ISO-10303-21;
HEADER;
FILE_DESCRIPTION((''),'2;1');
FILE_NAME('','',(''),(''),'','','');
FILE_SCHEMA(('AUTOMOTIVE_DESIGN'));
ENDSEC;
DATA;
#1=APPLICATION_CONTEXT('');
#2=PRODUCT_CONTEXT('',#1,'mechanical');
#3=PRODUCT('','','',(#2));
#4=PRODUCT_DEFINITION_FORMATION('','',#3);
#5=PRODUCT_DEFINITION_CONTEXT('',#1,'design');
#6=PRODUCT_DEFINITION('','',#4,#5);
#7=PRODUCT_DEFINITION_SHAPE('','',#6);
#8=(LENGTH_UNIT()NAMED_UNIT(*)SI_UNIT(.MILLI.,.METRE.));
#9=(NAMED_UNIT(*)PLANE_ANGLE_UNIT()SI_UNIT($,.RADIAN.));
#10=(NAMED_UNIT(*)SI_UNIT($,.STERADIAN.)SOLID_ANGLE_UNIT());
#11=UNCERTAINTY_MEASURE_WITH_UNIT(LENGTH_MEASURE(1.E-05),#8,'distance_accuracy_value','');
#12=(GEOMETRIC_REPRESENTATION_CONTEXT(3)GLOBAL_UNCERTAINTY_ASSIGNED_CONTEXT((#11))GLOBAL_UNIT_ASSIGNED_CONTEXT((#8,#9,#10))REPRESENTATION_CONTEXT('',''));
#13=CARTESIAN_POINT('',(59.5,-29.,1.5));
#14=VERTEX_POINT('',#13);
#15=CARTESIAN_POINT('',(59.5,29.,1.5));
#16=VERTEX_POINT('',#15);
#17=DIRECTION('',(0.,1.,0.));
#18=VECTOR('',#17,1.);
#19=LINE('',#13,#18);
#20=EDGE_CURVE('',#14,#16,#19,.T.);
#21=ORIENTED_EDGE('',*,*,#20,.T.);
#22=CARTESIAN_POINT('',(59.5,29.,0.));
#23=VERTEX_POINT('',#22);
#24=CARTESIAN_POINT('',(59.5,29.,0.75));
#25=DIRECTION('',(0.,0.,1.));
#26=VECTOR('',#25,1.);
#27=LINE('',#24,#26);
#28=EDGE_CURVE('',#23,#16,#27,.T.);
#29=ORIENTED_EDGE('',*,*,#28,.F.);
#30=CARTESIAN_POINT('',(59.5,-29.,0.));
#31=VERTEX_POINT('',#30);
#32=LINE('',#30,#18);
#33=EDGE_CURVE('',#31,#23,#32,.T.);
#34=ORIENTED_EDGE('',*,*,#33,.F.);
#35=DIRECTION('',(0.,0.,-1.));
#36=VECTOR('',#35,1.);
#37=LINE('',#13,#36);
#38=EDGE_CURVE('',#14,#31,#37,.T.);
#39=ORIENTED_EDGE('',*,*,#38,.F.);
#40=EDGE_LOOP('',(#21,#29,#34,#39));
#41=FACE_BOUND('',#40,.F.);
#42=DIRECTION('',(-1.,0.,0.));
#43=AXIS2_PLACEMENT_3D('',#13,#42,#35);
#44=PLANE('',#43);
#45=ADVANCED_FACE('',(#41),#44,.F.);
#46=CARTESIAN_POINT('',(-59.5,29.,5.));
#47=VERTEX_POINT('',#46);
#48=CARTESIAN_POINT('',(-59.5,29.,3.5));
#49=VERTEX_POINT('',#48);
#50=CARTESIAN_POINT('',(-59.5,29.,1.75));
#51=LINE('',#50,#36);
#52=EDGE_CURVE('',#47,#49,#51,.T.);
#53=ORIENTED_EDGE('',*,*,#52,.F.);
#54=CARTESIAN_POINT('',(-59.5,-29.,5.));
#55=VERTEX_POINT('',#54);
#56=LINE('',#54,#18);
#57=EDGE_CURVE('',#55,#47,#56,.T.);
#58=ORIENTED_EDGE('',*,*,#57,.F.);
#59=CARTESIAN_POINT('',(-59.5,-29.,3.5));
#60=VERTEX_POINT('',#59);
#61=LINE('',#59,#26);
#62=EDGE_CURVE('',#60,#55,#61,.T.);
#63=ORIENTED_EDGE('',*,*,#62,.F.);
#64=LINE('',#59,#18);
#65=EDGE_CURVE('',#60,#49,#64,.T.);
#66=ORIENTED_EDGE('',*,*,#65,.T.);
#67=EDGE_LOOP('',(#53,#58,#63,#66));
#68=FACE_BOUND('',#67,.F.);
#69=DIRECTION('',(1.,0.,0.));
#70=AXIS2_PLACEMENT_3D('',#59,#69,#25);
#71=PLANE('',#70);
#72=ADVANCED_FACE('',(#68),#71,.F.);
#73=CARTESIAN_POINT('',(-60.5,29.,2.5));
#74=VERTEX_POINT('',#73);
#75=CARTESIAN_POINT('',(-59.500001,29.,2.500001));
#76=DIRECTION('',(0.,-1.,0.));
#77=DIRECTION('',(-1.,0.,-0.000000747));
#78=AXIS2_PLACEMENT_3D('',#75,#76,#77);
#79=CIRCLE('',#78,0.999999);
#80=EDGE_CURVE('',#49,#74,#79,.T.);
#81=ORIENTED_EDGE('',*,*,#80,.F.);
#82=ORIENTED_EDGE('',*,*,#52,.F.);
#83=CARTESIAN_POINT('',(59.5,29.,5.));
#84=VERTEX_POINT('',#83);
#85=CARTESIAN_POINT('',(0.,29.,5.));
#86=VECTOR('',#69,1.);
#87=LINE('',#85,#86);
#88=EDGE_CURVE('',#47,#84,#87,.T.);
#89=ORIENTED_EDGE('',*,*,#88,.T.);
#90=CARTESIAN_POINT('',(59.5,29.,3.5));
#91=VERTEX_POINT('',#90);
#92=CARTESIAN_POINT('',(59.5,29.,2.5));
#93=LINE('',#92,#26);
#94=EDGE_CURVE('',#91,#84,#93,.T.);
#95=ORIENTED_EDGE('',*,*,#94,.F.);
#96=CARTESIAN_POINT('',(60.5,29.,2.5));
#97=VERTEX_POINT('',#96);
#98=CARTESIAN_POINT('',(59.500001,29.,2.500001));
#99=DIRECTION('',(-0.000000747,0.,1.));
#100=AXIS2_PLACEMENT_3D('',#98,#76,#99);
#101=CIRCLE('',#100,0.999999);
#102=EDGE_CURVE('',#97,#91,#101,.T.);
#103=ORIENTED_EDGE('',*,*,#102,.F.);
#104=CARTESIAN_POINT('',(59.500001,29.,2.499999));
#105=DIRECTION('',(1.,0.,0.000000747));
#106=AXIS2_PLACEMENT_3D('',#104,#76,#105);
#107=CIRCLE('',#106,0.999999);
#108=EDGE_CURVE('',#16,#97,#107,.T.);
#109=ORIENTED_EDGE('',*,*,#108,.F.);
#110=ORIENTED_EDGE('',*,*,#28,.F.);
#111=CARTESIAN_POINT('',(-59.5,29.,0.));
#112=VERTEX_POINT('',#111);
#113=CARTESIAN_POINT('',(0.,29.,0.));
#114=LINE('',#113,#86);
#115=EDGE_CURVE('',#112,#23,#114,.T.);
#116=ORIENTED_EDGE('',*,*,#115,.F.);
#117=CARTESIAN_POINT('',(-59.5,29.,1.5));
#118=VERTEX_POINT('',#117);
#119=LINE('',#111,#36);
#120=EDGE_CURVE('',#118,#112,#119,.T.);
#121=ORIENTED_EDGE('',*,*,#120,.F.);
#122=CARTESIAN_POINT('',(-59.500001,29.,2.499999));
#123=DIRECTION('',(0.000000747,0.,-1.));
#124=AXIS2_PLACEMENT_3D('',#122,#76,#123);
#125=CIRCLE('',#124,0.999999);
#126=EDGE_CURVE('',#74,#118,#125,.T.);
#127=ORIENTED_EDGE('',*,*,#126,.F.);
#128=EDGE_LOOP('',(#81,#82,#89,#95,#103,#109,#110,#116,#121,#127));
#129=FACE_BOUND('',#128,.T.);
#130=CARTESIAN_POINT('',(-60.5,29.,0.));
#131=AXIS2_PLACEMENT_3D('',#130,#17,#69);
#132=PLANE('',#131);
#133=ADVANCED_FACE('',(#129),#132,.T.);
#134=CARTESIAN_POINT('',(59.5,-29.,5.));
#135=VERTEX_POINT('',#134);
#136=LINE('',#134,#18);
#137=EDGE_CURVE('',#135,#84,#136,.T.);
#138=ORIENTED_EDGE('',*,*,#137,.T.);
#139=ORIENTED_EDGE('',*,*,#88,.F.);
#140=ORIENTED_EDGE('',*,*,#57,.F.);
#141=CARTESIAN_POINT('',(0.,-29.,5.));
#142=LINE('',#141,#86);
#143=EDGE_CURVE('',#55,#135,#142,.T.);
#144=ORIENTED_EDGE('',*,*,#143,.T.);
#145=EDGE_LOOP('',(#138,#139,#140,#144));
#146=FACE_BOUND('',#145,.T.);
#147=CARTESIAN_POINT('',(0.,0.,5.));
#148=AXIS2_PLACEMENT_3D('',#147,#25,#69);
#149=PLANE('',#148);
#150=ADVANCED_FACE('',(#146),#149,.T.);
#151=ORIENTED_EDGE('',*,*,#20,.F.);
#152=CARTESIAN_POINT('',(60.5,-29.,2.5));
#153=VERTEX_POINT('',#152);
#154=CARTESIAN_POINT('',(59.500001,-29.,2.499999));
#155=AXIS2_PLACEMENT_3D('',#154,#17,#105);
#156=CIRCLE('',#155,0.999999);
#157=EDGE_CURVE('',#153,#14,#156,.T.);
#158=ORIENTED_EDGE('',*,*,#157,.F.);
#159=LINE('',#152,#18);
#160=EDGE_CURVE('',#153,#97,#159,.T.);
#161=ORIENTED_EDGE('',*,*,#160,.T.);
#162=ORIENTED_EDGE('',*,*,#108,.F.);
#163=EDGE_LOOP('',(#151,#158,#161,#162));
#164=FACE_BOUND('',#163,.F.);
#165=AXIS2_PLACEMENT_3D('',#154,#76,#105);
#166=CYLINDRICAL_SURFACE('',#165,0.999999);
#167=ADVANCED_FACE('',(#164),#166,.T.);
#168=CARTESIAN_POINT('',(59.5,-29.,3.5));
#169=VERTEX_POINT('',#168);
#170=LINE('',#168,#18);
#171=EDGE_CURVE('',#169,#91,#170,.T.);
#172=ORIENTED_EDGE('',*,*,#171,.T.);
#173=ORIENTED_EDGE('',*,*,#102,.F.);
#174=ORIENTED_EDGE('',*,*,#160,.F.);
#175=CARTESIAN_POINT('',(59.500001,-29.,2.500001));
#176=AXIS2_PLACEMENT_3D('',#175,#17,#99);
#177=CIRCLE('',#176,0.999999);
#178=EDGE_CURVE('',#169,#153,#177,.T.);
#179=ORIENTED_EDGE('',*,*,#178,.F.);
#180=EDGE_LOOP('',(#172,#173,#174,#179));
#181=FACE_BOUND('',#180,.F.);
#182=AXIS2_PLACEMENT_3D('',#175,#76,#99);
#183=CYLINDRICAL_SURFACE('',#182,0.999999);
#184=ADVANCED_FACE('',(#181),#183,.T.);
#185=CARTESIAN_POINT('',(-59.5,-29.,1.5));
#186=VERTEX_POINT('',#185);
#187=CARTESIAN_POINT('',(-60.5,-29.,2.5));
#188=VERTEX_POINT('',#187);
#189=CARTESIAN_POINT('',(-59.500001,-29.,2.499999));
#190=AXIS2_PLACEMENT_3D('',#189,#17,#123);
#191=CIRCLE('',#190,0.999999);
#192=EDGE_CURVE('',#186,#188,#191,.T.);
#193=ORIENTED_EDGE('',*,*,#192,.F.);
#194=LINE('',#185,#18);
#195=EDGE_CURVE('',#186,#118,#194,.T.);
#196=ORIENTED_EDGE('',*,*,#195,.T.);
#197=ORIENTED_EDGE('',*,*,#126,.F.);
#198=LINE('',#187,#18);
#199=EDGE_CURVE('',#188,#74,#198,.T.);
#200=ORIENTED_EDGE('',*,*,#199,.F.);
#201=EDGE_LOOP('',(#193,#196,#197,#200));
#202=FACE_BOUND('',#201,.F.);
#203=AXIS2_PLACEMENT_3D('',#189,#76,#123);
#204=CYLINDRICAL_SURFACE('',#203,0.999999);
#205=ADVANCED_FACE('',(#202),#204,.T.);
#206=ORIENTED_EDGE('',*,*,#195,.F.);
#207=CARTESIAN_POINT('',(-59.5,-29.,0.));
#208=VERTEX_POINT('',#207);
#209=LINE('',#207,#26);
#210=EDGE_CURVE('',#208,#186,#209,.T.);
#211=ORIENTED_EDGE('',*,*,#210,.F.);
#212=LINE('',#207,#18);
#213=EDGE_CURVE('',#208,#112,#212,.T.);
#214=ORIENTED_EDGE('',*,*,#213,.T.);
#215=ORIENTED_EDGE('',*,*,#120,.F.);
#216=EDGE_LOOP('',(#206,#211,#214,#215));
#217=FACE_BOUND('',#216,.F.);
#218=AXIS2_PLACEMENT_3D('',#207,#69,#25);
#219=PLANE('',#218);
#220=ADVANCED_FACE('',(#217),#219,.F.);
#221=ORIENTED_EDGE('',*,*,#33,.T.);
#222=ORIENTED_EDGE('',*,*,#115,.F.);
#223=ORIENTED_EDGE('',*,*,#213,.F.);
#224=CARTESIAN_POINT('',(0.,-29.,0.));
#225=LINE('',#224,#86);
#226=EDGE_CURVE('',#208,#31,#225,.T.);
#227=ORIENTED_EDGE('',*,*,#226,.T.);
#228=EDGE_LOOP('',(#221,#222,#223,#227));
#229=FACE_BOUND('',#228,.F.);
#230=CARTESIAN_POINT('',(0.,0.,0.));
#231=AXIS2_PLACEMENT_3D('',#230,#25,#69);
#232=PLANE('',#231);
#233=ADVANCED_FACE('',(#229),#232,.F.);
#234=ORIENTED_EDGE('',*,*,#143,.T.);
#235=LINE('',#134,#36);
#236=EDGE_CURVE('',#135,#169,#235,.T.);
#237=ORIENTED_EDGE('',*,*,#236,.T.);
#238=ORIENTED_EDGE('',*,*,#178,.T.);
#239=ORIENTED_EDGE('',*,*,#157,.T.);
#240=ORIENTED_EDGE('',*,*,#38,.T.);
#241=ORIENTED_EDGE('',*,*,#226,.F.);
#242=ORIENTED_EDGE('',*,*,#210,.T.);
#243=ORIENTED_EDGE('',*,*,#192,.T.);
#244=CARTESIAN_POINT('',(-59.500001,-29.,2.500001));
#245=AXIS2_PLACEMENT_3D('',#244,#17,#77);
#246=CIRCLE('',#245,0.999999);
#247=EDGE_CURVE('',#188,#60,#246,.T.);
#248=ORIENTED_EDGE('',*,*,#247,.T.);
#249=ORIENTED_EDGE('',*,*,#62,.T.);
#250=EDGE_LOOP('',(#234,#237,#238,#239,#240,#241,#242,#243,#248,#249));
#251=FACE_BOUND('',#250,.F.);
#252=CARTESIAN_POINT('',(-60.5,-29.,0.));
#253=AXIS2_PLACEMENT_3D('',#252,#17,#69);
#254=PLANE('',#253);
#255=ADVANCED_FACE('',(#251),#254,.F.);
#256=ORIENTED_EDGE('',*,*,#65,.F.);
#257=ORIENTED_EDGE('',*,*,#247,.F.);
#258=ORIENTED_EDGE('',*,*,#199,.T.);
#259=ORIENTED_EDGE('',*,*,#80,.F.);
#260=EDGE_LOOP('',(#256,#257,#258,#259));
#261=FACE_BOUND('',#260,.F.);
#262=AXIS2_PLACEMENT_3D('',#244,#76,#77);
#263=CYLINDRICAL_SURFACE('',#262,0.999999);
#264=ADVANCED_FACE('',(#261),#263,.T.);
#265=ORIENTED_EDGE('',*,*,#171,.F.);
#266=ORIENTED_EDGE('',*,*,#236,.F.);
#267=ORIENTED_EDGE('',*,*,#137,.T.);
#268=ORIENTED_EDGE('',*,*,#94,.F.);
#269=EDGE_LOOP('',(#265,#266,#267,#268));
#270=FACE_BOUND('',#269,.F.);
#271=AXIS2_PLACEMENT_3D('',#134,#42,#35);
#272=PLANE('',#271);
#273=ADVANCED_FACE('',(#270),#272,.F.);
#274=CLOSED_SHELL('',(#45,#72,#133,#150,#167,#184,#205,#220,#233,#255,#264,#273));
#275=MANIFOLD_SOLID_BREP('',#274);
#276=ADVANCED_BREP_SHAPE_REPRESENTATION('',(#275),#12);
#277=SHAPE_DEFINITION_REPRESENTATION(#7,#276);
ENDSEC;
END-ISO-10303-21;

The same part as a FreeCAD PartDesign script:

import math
import FreeCAD as App
import Part
import Sketcher
from FreeCAD import Vector
Q = App.Units.Quantity

doc = App.newDocument("Part")
body = doc.addObject("PartDesign::Body", "Body")

# Sketch on XY plane
sketch1 = body.newObject("Sketcher::SketchObject", "Sketch")
sketch1.AttachmentSupport = (doc.getObject("XY_Plane"), [""])
sketch1.MapMode = "FlatFace"
sketch1.addGeometry([
    Part.LineSegment(Vector(-60, 29, 0), Vector(-60, -29, 0)),
    Part.LineSegment(Vector(-60, -29, 0), Vector(60, -29, 0)),
    Part.LineSegment(Vector(60, -29, 0), Vector(60, 29, 0)),
    Part.LineSegment(Vector(60, 29, 0), Vector(-60, 29, 0)),
], False)
sketch1.addConstraint([
    Sketcher.Constraint("Coincident", 0, 2, 1, 1),
    Sketcher.Constraint("Coincident", 1, 2, 2, 1),
    Sketcher.Constraint("Coincident", 2, 2, 3, 1),
    Sketcher.Constraint("Coincident", 3, 2, 0, 1),
    Sketcher.Constraint("Vertical", 0),
    Sketcher.Constraint("Horizontal", 1),
    Sketcher.Constraint("Vertical", 2),
    Sketcher.Constraint("Horizontal", 3),
    Sketcher.Constraint("Symmetric", 0, 2, 2, 2, -1, 1),
    Sketcher.Constraint("DistanceX", 1, 1, 1, 2, Q("121 mm")),
    Sketcher.Constraint("DistanceY", 0, 2, 0, 1, Q("58 mm")),
])
pad1 = body.newObject("PartDesign::Pad", "Pad")
pad1.Profile = sketch1
pad1.Length = 5

# Sketch on XZ plane
sketch2 = body.newObject("Sketcher::SketchObject", "Sketch001")
sketch2.AttachmentSupport = (doc.getObject("XZ_Plane"), [""])
sketch2.MapMode = "FlatFace"
sketch2.AttachmentOffset = App.Placement(Vector(0, 0, 29), App.Rotation())
sketch2.addGeometry([
    Part.LineSegment(Vector(-59.5, 3.5, 0), Vector(-59.5, 5, 0)),  # 0
    Part.LineSegment(Vector(-59.5, 5, 0), Vector(-60.5, 5, 0)),  # 1
    Part.LineSegment(Vector(-60.5, 5, 0), Vector(-60.5, 2.5, 0)),  # 2
    Part.ArcOfCircle(Part.Circle(Vector(-59.5, 2.5, 0), Vector(0, 0, 1), 1), math.radians(90), math.radians(180)),  # 3
    Part.LineSegment(Vector(-60.5, 0, 0), Vector(-59.5, 0, 0)),  # 4
    Part.LineSegment(Vector(-59.5, 0, 0), Vector(-59.5, 1.5, 0)),  # 5
    Part.ArcOfCircle(Part.Circle(Vector(-59.5, 2.5, 0), Vector(0, 0, 1), 1), math.radians(180), math.radians(270)),  # 6
    Part.LineSegment(Vector(-60.5, 2.5, 0), Vector(-60.5, 0, 0)),  # 7
    Part.LineSegment(Vector(60.5, 0, 0), Vector(60.5, 2.5, 0)),  # 8
    Part.ArcOfCircle(Part.Circle(Vector(59.5, 2.5, 0), Vector(0, 0, 1), 1), math.radians(-90), math.radians(0)),  # 9
    Part.LineSegment(Vector(59.5, 1.5, 0), Vector(59.5, 0, 0)),  # 10
    Part.LineSegment(Vector(59.5, 0, 0), Vector(60.5, 0, 0)),  # 11
    Part.ArcOfCircle(Part.Circle(Vector(59.5, 2.5, 0), Vector(0, 0, 1), 1), math.radians(0), math.radians(90)),  # 12
    Part.LineSegment(Vector(60.5, 2.5, 0), Vector(60.5, 5, 0)),  # 13
    Part.LineSegment(Vector(60.5, 5, 0), Vector(59.5, 5, 0)),  # 14
    Part.LineSegment(Vector(59.5, 5, 0), Vector(59.5, 3.5, 0)),  # 15
], False)
sketch2.addConstraint([
    Sketcher.Constraint("Coincident", 0, 2, 1, 1),
    Sketcher.Constraint("Coincident", 1, 2, 2, 1),
    Sketcher.Constraint("Tangent", 2, 2, 3, 2),
    Sketcher.Constraint("Coincident", 3, 1, 0, 1),
    Sketcher.Constraint("Coincident", 4, 2, 5, 1),
    Sketcher.Constraint("Coincident", 5, 2, 6, 2),
    Sketcher.Constraint("Tangent", 6, 1, 7, 1),
    Sketcher.Constraint("Coincident", 7, 2, 4, 1),
    Sketcher.Constraint("Tangent", 8, 2, 9, 2),
    Sketcher.Constraint("Coincident", 9, 1, 10, 1),
    Sketcher.Constraint("Coincident", 10, 2, 11, 1),
    Sketcher.Constraint("Coincident", 11, 2, 8, 1),
    Sketcher.Constraint("Tangent", 12, 1, 13, 1),
    Sketcher.Constraint("Coincident", 13, 2, 14, 1),
    Sketcher.Constraint("Coincident", 14, 2, 15, 1),
    Sketcher.Constraint("Coincident", 15, 2, 12, 2),
    Sketcher.Constraint("Vertical", 0),
    Sketcher.Constraint("Horizontal", 1),
    Sketcher.Constraint("Vertical", 2),
    Sketcher.Constraint("Horizontal", 4),
    Sketcher.Constraint("Vertical", 5),
    Sketcher.Constraint("Vertical", 7),
    Sketcher.Constraint("Vertical", 8),
    Sketcher.Constraint("Vertical", 10),
    Sketcher.Constraint("Horizontal", 11),
    Sketcher.Constraint("Vertical", 13),
    Sketcher.Constraint("Horizontal", 14),
    Sketcher.Constraint("Vertical", 15),
    Sketcher.Constraint("Coincident", 6, 3, 3, 3),
    Sketcher.Constraint("Coincident", 12, 3, 9, 3),
    Sketcher.Constraint("Equal", 3, 6),
    Sketcher.Constraint("Equal", 6, 9),
    Sketcher.Constraint("Equal", 9, 12),
    Sketcher.Constraint("Symmetric", 4, 2, 10, 2, -1, 1),
    Sketcher.Constraint("Symmetric", 3, 3, 9, 3, -2),
    Sketcher.Constraint("Symmetric", 0, 2, 14, 2, -2),
    Sketcher.Constraint("PointOnObject", 4, 2, -1),
    Sketcher.Constraint("Vertical", 6, 3, 0, 2),
    Sketcher.Constraint("Vertical", 3, 1, 4, 2),
    Sketcher.Constraint("Equal", 0, 5),
    Sketcher.Constraint("Radius", 3, Q("0.999999 mm")),
    Sketcher.Constraint("DistanceY", 0, 1, 0, 2, Q("1.5 mm")),
    Sketcher.Constraint("DistanceX", 6, 3, 9, 3, Q("119.000001 mm")),
])
pocket1 = body.newObject("PartDesign::Pocket", "Pocket")
pocket1.Profile = sketch2
pocket1.Type = "ThroughAll"

doc.recompute()
